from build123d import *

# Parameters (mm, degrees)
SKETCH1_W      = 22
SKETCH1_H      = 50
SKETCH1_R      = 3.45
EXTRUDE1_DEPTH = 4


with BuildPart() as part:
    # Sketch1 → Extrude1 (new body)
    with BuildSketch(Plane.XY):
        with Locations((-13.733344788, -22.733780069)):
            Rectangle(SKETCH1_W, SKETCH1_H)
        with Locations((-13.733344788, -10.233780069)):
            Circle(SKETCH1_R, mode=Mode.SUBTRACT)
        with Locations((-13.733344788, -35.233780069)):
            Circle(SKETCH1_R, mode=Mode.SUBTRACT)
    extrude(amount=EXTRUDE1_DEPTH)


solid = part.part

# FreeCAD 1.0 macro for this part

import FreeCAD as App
import Part
import Sketcher
from FreeCAD import Vector
Q = App.Units.Quantity


def add_polygon(sketch, points):
    """Adds a closed chain of lines whose ends are joined by coincident constraints."""
    first, n = sketch.GeometryCount, len(points)
    for a, b in zip(points, points[1:] + points[:1]):
        sketch.addGeometry(Part.LineSegment(App.Vector(*a, 0), App.Vector(*b, 0)), False)
    for i in range(n):
        sketch.addConstraint(Sketcher.Constraint("Coincident", first + i, 2, first + (i + 1) % n, 1))

doc = App.newDocument("Part")
body = doc.addObject("PartDesign::Body", "Body")

sketch1 = body.newObject("Sketcher::SketchObject", "Sketch")
sketch1.AttachmentSupport = (doc.getObject("XY_Plane"), [""])
sketch1.MapMode = "FlatFace"
add_polygon(sketch1, [(-24.7, 2.3), (-24.7, -47.7), (-2.7, -47.7), (-2.7, 2.3)])
sketch1.addGeometry(Part.Circle(Vector(-13.7, -35.2, 0), Vector(0, 0, 1), 3.5), False)
sketch1.addGeometry(Part.Circle(Vector(-13.7, -10.2, 0), Vector(0, 0, 1), 3.5), False)
sketch1.addConstraint(Sketcher.Constraint("Vertical", 0))
sketch1.addConstraint(Sketcher.Constraint("Horizontal", 1))
sketch1.addConstraint(Sketcher.Constraint("Vertical", 2))
sketch1.addConstraint(Sketcher.Constraint("Horizontal", 3))
sketch1.addConstraint(Sketcher.Constraint("Equal", 4, 5))
sketch1.addConstraint(Sketcher.Constraint("Vertical", 4, 3, 5, 3))
sketch1.addConstraint(Sketcher.Constraint("Diameter", 4, Q("6.9 mm")))
sketch1.addConstraint(Sketcher.Constraint("DistanceX", 1, 1, 1, 2, Q("22 mm")))
sketch1.addConstraint(Sketcher.Constraint("DistanceY", 0, 2, 0, 1, Q("50 mm")))
sketch1.addConstraint(Sketcher.Constraint("DistanceY", 4, 3, 5, 3, Q("25 mm")))
sketch1.addConstraint(Sketcher.Constraint("DistanceX", 0, 2, 4, 3, Q("11 mm")))
sketch1.addConstraint(Sketcher.Constraint("DistanceY", 0, 2, 4, 3, Q("12.5 mm")))
sketch1.addConstraint(Sketcher.Constraint("DistanceY", 4, 3, -1, 1, Q("35.23378 mm")))
sketch1.addConstraint(Sketcher.Constraint("DistanceX", 4, 3, -1, 1, Q("13.733345 mm")))
pad1 = body.newObject("PartDesign::Pad", "Pad")
pad1.Profile = sketch1
pad1.Length = 4

doc.recompute()
